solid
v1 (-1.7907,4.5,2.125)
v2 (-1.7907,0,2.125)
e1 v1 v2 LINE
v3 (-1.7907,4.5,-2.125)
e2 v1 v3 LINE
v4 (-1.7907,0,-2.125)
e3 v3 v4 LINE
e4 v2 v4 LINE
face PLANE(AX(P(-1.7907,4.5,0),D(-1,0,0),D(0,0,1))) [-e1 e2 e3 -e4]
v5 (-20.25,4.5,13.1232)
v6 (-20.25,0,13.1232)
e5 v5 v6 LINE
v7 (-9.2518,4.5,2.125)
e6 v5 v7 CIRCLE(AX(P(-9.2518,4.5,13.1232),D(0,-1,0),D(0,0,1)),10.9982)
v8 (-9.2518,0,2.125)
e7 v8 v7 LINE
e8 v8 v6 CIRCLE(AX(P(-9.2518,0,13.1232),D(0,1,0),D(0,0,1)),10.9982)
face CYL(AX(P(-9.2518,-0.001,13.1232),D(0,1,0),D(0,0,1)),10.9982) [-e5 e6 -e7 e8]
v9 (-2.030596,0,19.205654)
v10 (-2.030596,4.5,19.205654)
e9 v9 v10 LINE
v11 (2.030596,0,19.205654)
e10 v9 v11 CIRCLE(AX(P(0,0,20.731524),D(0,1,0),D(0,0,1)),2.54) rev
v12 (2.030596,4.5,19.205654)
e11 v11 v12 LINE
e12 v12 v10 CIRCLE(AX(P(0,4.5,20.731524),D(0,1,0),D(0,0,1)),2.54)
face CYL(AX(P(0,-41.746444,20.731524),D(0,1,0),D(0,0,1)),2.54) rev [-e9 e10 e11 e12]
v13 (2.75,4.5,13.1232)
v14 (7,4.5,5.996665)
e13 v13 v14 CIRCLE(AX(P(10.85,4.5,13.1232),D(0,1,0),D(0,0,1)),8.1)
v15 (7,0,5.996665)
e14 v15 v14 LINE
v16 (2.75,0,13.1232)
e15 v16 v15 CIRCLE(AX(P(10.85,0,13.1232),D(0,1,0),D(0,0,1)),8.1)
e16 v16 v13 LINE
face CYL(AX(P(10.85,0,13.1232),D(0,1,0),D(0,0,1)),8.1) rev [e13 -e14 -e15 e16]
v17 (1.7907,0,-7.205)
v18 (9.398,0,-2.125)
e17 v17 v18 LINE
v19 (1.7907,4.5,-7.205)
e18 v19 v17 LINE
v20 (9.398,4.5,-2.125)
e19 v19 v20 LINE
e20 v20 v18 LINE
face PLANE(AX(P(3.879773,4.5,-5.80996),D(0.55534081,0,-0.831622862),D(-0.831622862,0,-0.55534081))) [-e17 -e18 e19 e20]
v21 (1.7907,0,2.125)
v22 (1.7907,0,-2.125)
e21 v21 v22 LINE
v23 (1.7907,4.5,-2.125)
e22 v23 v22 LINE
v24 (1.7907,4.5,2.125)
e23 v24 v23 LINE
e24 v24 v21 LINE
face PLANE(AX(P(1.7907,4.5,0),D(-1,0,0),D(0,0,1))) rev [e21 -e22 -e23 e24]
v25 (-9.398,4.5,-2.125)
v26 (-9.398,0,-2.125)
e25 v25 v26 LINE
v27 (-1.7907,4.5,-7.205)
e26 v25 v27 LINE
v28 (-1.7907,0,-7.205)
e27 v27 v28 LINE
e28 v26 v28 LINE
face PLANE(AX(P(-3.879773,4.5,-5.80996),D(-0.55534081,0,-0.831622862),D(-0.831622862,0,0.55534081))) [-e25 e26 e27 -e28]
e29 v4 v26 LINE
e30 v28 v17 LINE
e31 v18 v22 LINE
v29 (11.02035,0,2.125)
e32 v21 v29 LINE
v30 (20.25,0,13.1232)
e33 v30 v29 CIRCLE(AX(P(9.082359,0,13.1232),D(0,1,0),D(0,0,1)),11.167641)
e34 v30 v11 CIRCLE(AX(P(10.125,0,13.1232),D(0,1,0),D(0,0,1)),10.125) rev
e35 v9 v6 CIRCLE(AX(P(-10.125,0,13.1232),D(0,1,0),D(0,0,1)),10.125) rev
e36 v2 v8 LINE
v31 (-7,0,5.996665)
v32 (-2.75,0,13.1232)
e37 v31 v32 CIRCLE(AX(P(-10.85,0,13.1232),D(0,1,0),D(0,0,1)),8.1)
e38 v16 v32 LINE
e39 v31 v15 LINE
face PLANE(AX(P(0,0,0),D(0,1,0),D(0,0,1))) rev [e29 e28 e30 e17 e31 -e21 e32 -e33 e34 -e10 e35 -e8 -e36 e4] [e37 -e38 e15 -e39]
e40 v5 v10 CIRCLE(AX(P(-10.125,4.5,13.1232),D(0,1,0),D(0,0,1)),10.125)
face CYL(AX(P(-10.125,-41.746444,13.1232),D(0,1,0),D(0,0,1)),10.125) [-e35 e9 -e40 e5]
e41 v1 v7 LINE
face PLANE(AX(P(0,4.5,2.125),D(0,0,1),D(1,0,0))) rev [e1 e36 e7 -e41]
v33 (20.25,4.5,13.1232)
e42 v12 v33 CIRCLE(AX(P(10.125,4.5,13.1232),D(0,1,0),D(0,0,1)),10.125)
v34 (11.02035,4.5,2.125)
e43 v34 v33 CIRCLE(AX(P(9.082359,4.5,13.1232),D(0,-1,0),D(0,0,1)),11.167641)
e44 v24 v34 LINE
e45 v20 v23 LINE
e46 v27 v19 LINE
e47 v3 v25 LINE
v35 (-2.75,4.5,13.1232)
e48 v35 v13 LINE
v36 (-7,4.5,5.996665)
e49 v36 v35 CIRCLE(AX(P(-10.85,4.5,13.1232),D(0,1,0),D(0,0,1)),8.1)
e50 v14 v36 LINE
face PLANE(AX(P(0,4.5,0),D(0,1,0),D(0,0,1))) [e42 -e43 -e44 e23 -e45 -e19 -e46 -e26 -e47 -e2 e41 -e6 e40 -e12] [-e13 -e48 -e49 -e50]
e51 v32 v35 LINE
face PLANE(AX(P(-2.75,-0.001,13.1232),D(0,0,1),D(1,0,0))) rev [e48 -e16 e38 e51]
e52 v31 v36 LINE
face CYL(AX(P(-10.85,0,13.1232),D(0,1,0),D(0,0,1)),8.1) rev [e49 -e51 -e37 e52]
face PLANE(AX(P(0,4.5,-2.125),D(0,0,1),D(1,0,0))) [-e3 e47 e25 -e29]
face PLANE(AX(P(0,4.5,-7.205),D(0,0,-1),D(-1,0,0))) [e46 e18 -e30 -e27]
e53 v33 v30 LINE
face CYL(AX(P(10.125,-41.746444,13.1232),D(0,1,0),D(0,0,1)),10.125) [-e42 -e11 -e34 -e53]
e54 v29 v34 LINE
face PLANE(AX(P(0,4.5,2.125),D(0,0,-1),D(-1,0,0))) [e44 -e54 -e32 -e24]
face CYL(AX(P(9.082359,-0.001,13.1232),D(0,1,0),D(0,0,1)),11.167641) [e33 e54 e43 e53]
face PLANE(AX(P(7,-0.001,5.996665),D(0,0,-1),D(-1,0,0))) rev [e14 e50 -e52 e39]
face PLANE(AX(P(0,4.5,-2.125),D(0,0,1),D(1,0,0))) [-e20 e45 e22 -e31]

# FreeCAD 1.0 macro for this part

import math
import FreeCAD as App
import Part
import Sketcher

V = App.Vector

doc = App.newDocument("Part")
body = doc.addObject("PartDesign::Body", "Body")

# Sketch on XZ plane
sketch1 = body.newObject("Sketcher::SketchObject", "Sketch")
sketch1.AttachmentSupport = (doc.getObject("XZ_Plane"), [""])
sketch1.MapMode = "FlatFace"
sketch1.addGeometry([
    Part.LineSegment(V(-20.2, 13.1, 0), V(20.2, 13.1, 0)),  # 0
    Part.LineSegment(V(20.2, 13.1, 0), V(20.2, 2.1, 0)),  # 1
    Part.LineSegment(V(20.2, 2.1, 0), V(1.8, 2.1, 0)),  # 2
    Part.LineSegment(V(1.8, 2.1, 0), V(1.8, -2.1, 0)),  # 3
    Part.LineSegment(V(1.8, -2.1, 0), V(9.4, -2.1, 0)),  # 4
    Part.LineSegment(V(9.4, -2.1, 0), V(1.8, -7.2, 0)),  # 5
    Part.LineSegment(V(1.8, -7.2, 0), V(-1.8, -7.2, 0)),  # 6
    Part.LineSegment(V(-1.8, -7.2, 0), V(-9.4, -2.1, 0)),  # 7
    Part.LineSegment(V(-9.4, -2.1, 0), V(-1.8, -2.1, 0)),  # 8
    Part.LineSegment(V(-1.8, -2.1, 0), V(-1.8, 2.1, 0)),  # 9
    Part.LineSegment(V(-1.8, 2.1, 0), V(-20.2, 2.1, 0)),  # 10
    Part.LineSegment(V(-20.2, 2.1, 0), V(-20.2, 13.1, 0)),  # 11
], False)
sketch1.addConstraint([
    Sketcher.Constraint("Coincident", 0, 2, 1, 1),
    Sketcher.Constraint("Coincident", 1, 2, 2, 1),
    Sketcher.Constraint("Coincident", 2, 2, 3, 1),
    Sketcher.Constraint("Coincident", 3, 2, 4, 1),
    Sketcher.Constraint("Coincident", 4, 2, 5, 1),
    Sketcher.Constraint("Coincident", 5, 2, 6, 1),
    Sketcher.Constraint("Coincident", 6, 2, 7, 1),
    Sketcher.Constraint("Coincident", 7, 2, 8, 1),
    Sketcher.Constraint("Coincident", 8, 2, 9, 1),
    Sketcher.Constraint("Coincident", 9, 2, 10, 1),
    Sketcher.Constraint("Coincident", 10, 2, 11, 1),
    Sketcher.Constraint("Coincident", 11, 2, 0, 1),
    Sketcher.Constraint("Horizontal", 0),
    Sketcher.Constraint("Vertical", 1),
    Sketcher.Constraint("Horizontal", 2),
    Sketcher.Constraint("Vertical", 3),
    Sketcher.Constraint("Horizontal", 4),
    Sketcher.Constraint("Horizontal", 6),
    Sketcher.Constraint("Horizontal", 8),
    Sketcher.Constraint("Vertical", 9),
    Sketcher.Constraint("Horizontal", 10),
    Sketcher.Constraint("Vertical", 11),
    Sketcher.Constraint("Symmetric", 2, 2, 8, 2, -1, 1),
    Sketcher.Constraint("Symmetric", 4, 2, 7, 2, -2),
    Sketcher.Constraint("Symmetric", 1, 2, 10, 2, -2),
    Sketcher.Constraint("Vertical", 3, 2, 5, 2),
    Sketcher.Constraint("Vertical", 6, 2, 8, 2),
    Sketcher.Constraint("DistanceX", 0, 1, 0, 2, 40.5),
    Sketcher.Constraint("DistanceY", 3, 2, 3, 1, 4.25),
    Sketcher.Constraint("DistanceY", 5, 2, 3, 2, 5.08),
    Sketcher.Constraint("DistanceX", 2, 2, 2, 1, 18.4593),
    Sketcher.Constraint("DistanceX", 4, 1, 4, 2, 7.6073),
    Sketcher.Constraint("DistanceY", 1, 2, 1, 1, 10.9982),
])
pad1 = body.newObject("PartDesign::Pad", "Pad")
pad1.Profile = sketch1
pad1.Length = 4.5
pad1.Reversed = True

# Sketch on XZ plane
sketch2 = body.newObject("Sketcher::SketchObject", "Sketch001")
sketch2.AttachmentSupport = (doc.getObject("XZ_Plane"), [""])
sketch2.MapMode = "FlatFace"
sketch2.AttachmentOffset = App.Placement(V(0, 0, -4.5), App.Rotation())
sketch2.addGeometry([
    Part.LineSegment(V(-20.2, 2.1, 0), V(-20.2, 13.1, 0)),  # 0
    Part.ArcOfCircle(Part.Circle(V(-10.1, 13.1, 0), V(0, 0, 1), 10.1), math.radians(37), math.radians(180)),  # 1
    Part.ArcOfCircle(Part.Circle(V(0, 20.7, 0), V(0, 0, 1), 2.5), math.radians(-143), math.radians(-37)),  # 2
    Part.ArcOfCircle(Part.Circle(V(10.1, 13.1, 0), V(0, 0, 1), 10.1), math.radians(0), math.radians(143)),  # 3
    Part.LineSegment(V(20.2, 13.1, 0), V(20.2, 2.1, 0)),  # 4
    Part.LineSegment(V(20.2, 2.1, 0), V(1.8, 2.1, 0)),  # 5
    Part.LineSegment(V(1.8, 2.1, 0), V(1.8, -2.1, 0)),  # 6
    Part.LineSegment(V(1.8, -2.1, 0), V(9.4, -2.1, 0)),  # 7
    Part.LineSegment(V(9.4, -2.1, 0), V(1.8, -7.2, 0)),  # 8
    Part.LineSegment(V(1.8, -7.2, 0), V(-1.8, -7.2, 0)),  # 9
    Part.LineSegment(V(-1.8, -7.2, 0), V(-9.4, -2.1, 0)),  # 10
    Part.LineSegment(V(-9.4, -2.1, 0), V(-1.8, -2.1, 0)),  # 11
    Part.LineSegment(V(-1.8, -2.1, 0), V(-1.8, 2.1, 0)),  # 12
    Part.LineSegment(V(-1.8, 2.1, 0), V(-20.2, 2.1, 0)),  # 13
], False)
sketch2.addConstraint([
    Sketcher.Constraint("Tangent", 0, 2, 1, 2),
    Sketcher.Constraint("Tangent", 1, 1, 2, 1),
    Sketcher.Constraint("Tangent", 2, 2, 3, 2),
    Sketcher.Constraint("Tangent", 3, 1, 4, 1),
    Sketcher.Constraint("Coincident", 4, 2, 5, 1),
    Sketcher.Constraint("Coincident", 5, 2, 6, 1),
    Sketcher.Constraint("Coincident", 6, 2, 7, 1),
    Sketcher.Constraint("Coincident", 7, 2, 8, 1),
    Sketcher.Constraint("Coincident", 8, 2, 9, 1),
    Sketcher.Constraint("Coincident", 9, 2, 10, 1),
    Sketcher.Constraint("Coincident", 10, 2, 11, 1),
    Sketcher.Constraint("Coincident", 11, 2, 12, 1),
    Sketcher.Constraint("Coincident", 12, 2, 13, 1),
    Sketcher.Constraint("Coincident", 13, 2, 0, 1),
    Sketcher.Constraint("Vertical", 0),
    Sketcher.Constraint("Vertical", 4),
    Sketcher.Constraint("Horizontal", 5),
    Sketcher.Constraint("Vertical", 6),
    Sketcher.Constraint("Horizontal", 7),
    Sketcher.Constraint("Horizontal", 9),
    Sketcher.Constraint("Horizontal", 11),
    Sketcher.Constraint("Vertical", 12),
    Sketcher.Constraint("Horizontal", 13),
    Sketcher.Constraint("Equal", 1, 3),
    Sketcher.Constraint("Symmetric", 5, 2, 11, 2, -1, 1),
    Sketcher.Constraint("Symmetric", 1, 3, 3, 3, -2),
    Sketcher.Constraint("Symmetric", 7, 2, 10, 2, -2),
    Sketcher.Constraint("Horizontal", 5, 2, 12, 2),
    Sketcher.Constraint("Vertical", 6, 2, 8, 2),
    Sketcher.Constraint("Vertical", 9, 2, 11, 2),
    Sketcher.Constraint("Radius", 2, 2.54),
    Sketcher.Constraint("Radius", 1, 10.125),
    Sketcher.Constraint("DistanceY", 6, 2, 6, 1, 4.25),
    Sketcher.Constraint("DistanceX", 0, 2, -1, 1, 20.25),
    Sketcher.Constraint("DistanceY", 8, 2, 6, 2, 5.08),
    Sketcher.Constraint("DistanceX", 5, 2, 5, 1, 18.4593),
    Sketcher.Constraint("DistanceX", 7, 1, 7, 2, 7.6073),
    Sketcher.Constraint("DistanceY", 0, 1, 0, 2, 10.9982),
])
pad2 = body.newObject("PartDesign::Pad", "Pad001")
pad2.Profile = sketch2
pad2.Length = 4.5

# Sketch on XZ plane
sketch3 = body.newObject("Sketcher::SketchObject", "Sketch002")
sketch3.AttachmentSupport = (doc.getObject("XZ_Plane"), [""])
sketch3.MapMode = "FlatFace"
sketch3.AttachmentOffset = App.Placement(V(0, 0, -4.5), App.Rotation())
sketch3.addGeometry([
    Part.Circle(V(-11, 13, 0), V(0, 0, 1), 8),
    Part.Circle(V(11, 13, 0), V(0, 0, 1), 8),
], False)
sketch3.addConstraint([
    Sketcher.Constraint("Equal", 0, 1),
    Sketcher.Constraint("Symmetric", 0, 3, 1, 3, -2),
    Sketcher.Constraint("Diameter", 0, 16.2),
    Sketcher.Constraint("DistanceX", 0, 3, 1, 3, 21.7),
    Sketcher.Constraint("DistanceY", -1, 1, 0, 3, 13.1232),
])
pocket1 = body.newObject("PartDesign::Pocket", "Pocket")
pocket1.Profile = sketch3
pocket1.Type = "ThroughAll"
pocket1.Reversed = True

# Sketch on XZ plane
sketch4 = body.newObject("Sketcher::SketchObject", "Sketch003")
sketch4.AttachmentSupport = (doc.getObject("XZ_Plane"), [""])
sketch4.MapMode = "FlatFace"
sketch4.AttachmentOffset = App.Placement(V(0, 0, -4.5), App.Rotation())
sketch4.addGeometry([
    Part.LineSegment(V(7, 6, 0), V(-7, 6, 0)),
    Part.ArcOfCircle(Part.Circle(V(-11, 13, 0), V(0, 0, 1), 8), math.radians(-62), math.radians(0)),
    Part.LineSegment(V(-3, 13, 0), V(3, 13, 0)),
    Part.ArcOfCircle(Part.Circle(V(11, 13, 0), V(0, 0, 1), 8), math.radians(180), math.radians(242)),
], False)
sketch4.addConstraint([
    Sketcher.Constraint("Coincident", 0, 2, 1, 1),
    Sketcher.Constraint("Coincident", 1, 2, 2, 1),
    Sketcher.Constraint("Coincident", 2, 2, 3, 1),
    Sketcher.Constraint("Coincident", 3, 2, 0, 1),
    Sketcher.Constraint("Horizontal", 0),
    Sketcher.Constraint("Horizontal", 2),
    Sketcher.Constraint("Equal", 1, 3),
    Sketcher.Constraint("Symmetric", 1, 3, 3, 3, -2),
    Sketcher.Constraint("Horizontal", 3, 3, 1, 2),
    Sketcher.Constraint("Radius", 1, 8.1),
    Sketcher.Constraint("DistanceX", 0, 2, 0, 1, 14.0),
    Sketcher.Constraint("DistanceX", 2, 1, 2, 2, 5.5),
    Sketcher.Constraint("DistanceY", -1, 1, 1, 3, 13.1232),
])
pocket2 = body.newObject("PartDesign::Pocket", "Pocket001")
pocket2.Profile = sketch4
pocket2.Type = "UpToFirst"
pocket2.Reversed = True

# Sketch on XZ plane
sketch5 = body.newObject("Sketcher::SketchObject", "Sketch004")
sketch5.AttachmentSupport = (doc.getObject("XZ_Plane"), [""])
sketch5.MapMode = "FlatFace"
sketch5.AttachmentOffset = App.Placement(V(0, 0, -4.5), App.Rotation())
sketch5.addGeometry([
    Part.LineSegment(V(-9, 2, 0), V(-20, 2, 0)),
    Part.LineSegment(V(-20, 2, 0), V(-20, 13, 0)),
    Part.ArcOfCircle(Part.Circle(V(-9, 13, 0), V(0, 0, 1), 11), math.radians(180), math.radians(270)),
], False)
sketch5.addConstraint([
    Sketcher.Constraint("Coincident", 0, 2, 1, 1),
    Sketcher.Constraint("Tangent", 1, 2, 2, 1),
    Sketcher.Constraint("Tangent", 2, 2, 0, 1),
    Sketcher.Constraint("Horizontal", 0),
    Sketcher.Constraint("Vertical", 1),
    Sketcher.Constraint("Radius", 2, 10.9982),
    Sketcher.Constraint("DistanceX", 0, 2, -1, 1, 20.25),
    Sketcher.Constraint("DistanceY", -1, 1, 0, 2, 2.125),
])
pocket3 = body.newObject("PartDesign::Pocket", "Pocket002")
pocket3.Profile = sketch5
pocket3.Type = "UpToFirst"
pocket3.Reversed = True

# Sketch on XZ plane
sketch6 = body.newObject("Sketcher::SketchObject", "Sketch005")
sketch6.AttachmentSupport = (doc.getObject("XZ_Plane"), [""])
sketch6.MapMode = "FlatFace"
sketch6.AttachmentOffset = App.Placement(V(0, 0, -4.5), App.Rotation())
sketch6.addGeometry([
    Part.LineSegment(V(20, 13, 0), V(20, 2, 0)),
    Part.LineSegment(V(20, 2, 0), V(11, 2, 0)),
    Part.ArcOfCircle(Part.Circle(V(9, 13, 0), V(0, 0, 1), 11), math.radians(-80), math.radians(0)),
], False)
sketch6.addConstraint([
    Sketcher.Constraint("Coincident", 0, 2, 1, 1),
    Sketcher.Constraint("Coincident", 1, 2, 2, 1),
    Sketcher.Constraint("Tangent", 2, 2, 0, 1),
    Sketcher.Constraint("Vertical", 0),
    Sketcher.Constraint("Horizontal", 1),
    Sketcher.Constraint("DistanceX", -1, 1, 0, 2, 20.25),
    Sketcher.Constraint("Radius", 2, 11.167641),
    Sketcher.Constraint("DistanceY", 0, 2, 0, 1, 10.9982),
    Sketcher.Constraint("DistanceY", -1, 1, 0, 2, 2.125),
])
pocket4 = body.newObject("PartDesign::Pocket", "Pocket003")
pocket4.Profile = sketch6
pocket4.Type = "UpToFirst"
pocket4.Reversed = True

doc.recompute()
